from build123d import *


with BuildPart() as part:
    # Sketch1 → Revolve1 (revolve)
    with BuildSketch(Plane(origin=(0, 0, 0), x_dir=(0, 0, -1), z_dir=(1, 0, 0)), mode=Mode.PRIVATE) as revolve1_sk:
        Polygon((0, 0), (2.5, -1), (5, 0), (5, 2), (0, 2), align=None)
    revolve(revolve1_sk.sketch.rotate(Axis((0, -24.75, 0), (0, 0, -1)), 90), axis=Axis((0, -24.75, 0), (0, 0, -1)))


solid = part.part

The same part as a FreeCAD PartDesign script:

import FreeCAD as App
import Part
import Sketcher

V = App.Vector

doc = App.newDocument("Part")
params = doc.addObject("Spreadsheet::Sheet", "Params")
for row, (alias, value) in enumerate([
    ("sketch1_width", "2 mm"),
    ("sketch1_height", "5 mm"),
    ("revolution_angle", "360 deg"),
], start=1):
    params.set(f"A{row}", alias)
    params.set(f"B{row}", "=" + value)
    params.setAlias(f"B{row}", alias)

body = doc.addObject("PartDesign::Body", "Body")

sketch1 = body.newObject("Sketcher::SketchObject", "Sketch")
sketch1.AttachmentSupport = (doc.getObject("YZ_Plane"), [""])
sketch1.MapMode = "FlatFace"
sketch1.addGeometry([
    Part.LineSegment(V(0, 0, 0), V(-1, -2.5, 0)),
    Part.LineSegment(V(-1, -2.5, 0), V(0, -5, 0)),
    Part.LineSegment(V(0, -5, 0), V(2, -5, 0)),
    Part.LineSegment(V(2, -5, 0), V(2, 0, 0)),
    Part.LineSegment(V(2, 0, 0), V(0, 0, 0)),
], False)
sketch1.addGeometry(Part.LineSegment(V(-24.8, 0, 0), V(-24.8, -5, 0)), True)
sketch1.addConstraint([
    Sketcher.Constraint("Coincident", 0, 2, 1, 1),
    Sketcher.Constraint("Coincident", 1, 2, 2, 1),
    Sketcher.Constraint("Coincident", 2, 2, 3, 1),
    Sketcher.Constraint("Coincident", 3, 2, 4, 1),
    Sketcher.Constraint("Coincident", 4, 2, 0, 1),
    Sketcher.Constraint("Horizontal", 2),
    Sketcher.Constraint("Vertical", 3),
    Sketcher.Constraint("Horizontal", 4),
    Sketcher.Constraint("Vertical", 5),
    Sketcher.Constraint("Coincident", 4, 2, -1, 1),
    Sketcher.Constraint("PointOnObject", 1, 2, -2),
    Sketcher.Constraint("PointOnObject", 5, 1, -1),
    Sketcher.Constraint("Horizontal", 2, 2, 5, 2),
    Sketcher.Constraint("Equal", 0, 1),
    Sketcher.Constraint("DistanceX", 2, 1, 2, 2, 2.0),
    Sketcher.Constraint("DistanceY", 3, 1, 3, 2, 5.0),
    Sketcher.Constraint("DistanceX", 0, 2, -1, 1, 1.0),
    Sketcher.Constraint("DistanceX", 5, 1, -1, 1, 24.75),
])
sketch1.setExpression("Constraints[14]", "Params.sketch1_width")
sketch1.setExpression("Constraints[15]", "Params.sketch1_height")
revolution = body.newObject("PartDesign::Revolution", "Revolution")
revolution.Profile = sketch1
revolution.ReferenceAxis = (sketch1, ["Axis0"])
revolution.setExpression("Angle", "Params.revolution_angle")

doc.recompute()
